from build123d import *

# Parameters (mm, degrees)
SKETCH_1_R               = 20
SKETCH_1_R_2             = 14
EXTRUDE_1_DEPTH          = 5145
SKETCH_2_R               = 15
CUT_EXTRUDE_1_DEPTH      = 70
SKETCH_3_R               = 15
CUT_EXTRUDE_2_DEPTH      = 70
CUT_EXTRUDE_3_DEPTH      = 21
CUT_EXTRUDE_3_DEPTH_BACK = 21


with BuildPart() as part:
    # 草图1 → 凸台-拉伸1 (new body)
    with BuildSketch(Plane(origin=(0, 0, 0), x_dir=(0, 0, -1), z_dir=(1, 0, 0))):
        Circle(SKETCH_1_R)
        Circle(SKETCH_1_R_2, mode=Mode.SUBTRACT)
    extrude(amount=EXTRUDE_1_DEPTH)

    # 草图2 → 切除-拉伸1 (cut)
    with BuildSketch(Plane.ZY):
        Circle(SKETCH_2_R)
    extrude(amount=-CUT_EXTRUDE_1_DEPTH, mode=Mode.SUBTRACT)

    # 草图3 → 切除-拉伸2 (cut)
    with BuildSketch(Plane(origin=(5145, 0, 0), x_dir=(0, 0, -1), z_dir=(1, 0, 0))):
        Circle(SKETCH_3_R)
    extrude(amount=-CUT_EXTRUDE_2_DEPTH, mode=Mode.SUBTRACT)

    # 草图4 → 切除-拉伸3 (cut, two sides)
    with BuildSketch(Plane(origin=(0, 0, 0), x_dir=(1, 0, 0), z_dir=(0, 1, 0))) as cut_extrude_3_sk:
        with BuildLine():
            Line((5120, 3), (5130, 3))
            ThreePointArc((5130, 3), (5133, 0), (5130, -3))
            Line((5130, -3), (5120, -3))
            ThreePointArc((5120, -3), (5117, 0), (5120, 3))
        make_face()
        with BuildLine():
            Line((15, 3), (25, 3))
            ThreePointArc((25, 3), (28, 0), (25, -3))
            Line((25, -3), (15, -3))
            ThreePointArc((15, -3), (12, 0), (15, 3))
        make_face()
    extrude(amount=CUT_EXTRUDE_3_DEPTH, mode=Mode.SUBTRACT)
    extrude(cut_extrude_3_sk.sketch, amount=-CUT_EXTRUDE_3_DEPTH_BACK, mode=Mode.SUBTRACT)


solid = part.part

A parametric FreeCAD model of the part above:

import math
import FreeCAD as App
import Part
import Sketcher

V = App.Vector
Q = App.Units.Quantity

doc = App.newDocument("Part")
body = doc.addObject("PartDesign::Body", "Body")

# Sketch on YZ plane
sketch1 = body.newObject("Sketcher::SketchObject", "Sketch")
sketch1.AttachmentSupport = (doc.getObject("YZ_Plane"), [""])
sketch1.MapMode = "FlatFace"
sketch1.addGeometry(Part.Circle(V(0, 0, 0), V(0, 0, 1), 20), False)
sketch1.addGeometry(Part.Circle(V(0, 0, 0), V(0, 0, 1), 14), False)
sketch1.addConstraint(Sketcher.Constraint("Coincident", 0, 3, -1, 1))
sketch1.addConstraint(Sketcher.Constraint("Coincident", 1, 3, -1, 1))
sketch1.addConstraint(Sketcher.Constraint("Diameter", 0, Q("40 mm")))
sketch1.addConstraint(Sketcher.Constraint("Diameter", 1, Q("28 mm")))
pad1 = body.newObject("PartDesign::Pad", "Pad")
pad1.Profile = sketch1
pad1.Length = 5145

# Sketch on YZ plane
sketch2 = body.newObject("Sketcher::SketchObject", "Sketch001")
sketch2.AttachmentSupport = (doc.getObject("YZ_Plane"), [""])
sketch2.MapMode = "FlatFace"
sketch2.addGeometry(Part.Circle(V(0, 0, 0), V(0, 0, 1), 15), False)
sketch2.addConstraint(Sketcher.Constraint("Coincident", 0, 3, -1, 1))
sketch2.addConstraint(Sketcher.Constraint("Diameter", 0, Q("30 mm")))
pocket1 = body.newObject("PartDesign::Pocket", "Pocket")
pocket1.Profile = sketch2
pocket1.Length = 70
pocket1.Reversed = True

# Sketch on YZ plane
sketch3 = body.newObject("Sketcher::SketchObject", "Sketch002")
sketch3.AttachmentSupport = (doc.getObject("YZ_Plane"), [""])
sketch3.MapMode = "FlatFace"
sketch3.AttachmentOffset = App.Placement(V(0, 0, 5145), App.Rotation())
sketch3.addGeometry(Part.Circle(V(0, 0, 0), V(0, 0, 1), 15), False)
sketch3.addConstraint(Sketcher.Constraint("Coincident", 0, 3, -1, 1))
sketch3.addConstraint(Sketcher.Constraint("Diameter", 0, Q("30 mm")))
pocket2 = body.newObject("PartDesign::Pocket", "Pocket001")
pocket2.Profile = sketch3
pocket2.Length = 70

# Sketch on XZ plane
sketch4 = body.newObject("Sketcher::SketchObject", "Sketch003")
sketch4.AttachmentSupport = (doc.getObject("XZ_Plane"), [""])
sketch4.MapMode = "FlatFace"
sketch4.addGeometry(Part.LineSegment(V(5130, -3, 0), V(5120, -3, 0)), False)
sketch4.addGeometry(Part.ArcOfCircle(Part.Circle(V(5120, 0, 0), V(0, 0, 1), 3), math.radians(90), math.radians(270)), False)
sketch4.addGeometry(Part.LineSegment(V(5120, 3, 0), V(5130, 3, 0)), False)
sketch4.addGeometry(Part.ArcOfCircle(Part.Circle(V(5130, 0, 0), V(0, 0, 1), 3), math.radians(-90), math.radians(90)), False)
sketch4.addGeometry(Part.LineSegment(V(25, -3, 0), V(15, -3, 0)), False)
sketch4.addGeometry(Part.ArcOfCircle(Part.Circle(V(15, 0, 0), V(0, 0, 1), 3), math.radians(90), math.radians(270)), False)
sketch4.addGeometry(Part.LineSegment(V(15, 3, 0), V(25, 3, 0)), False)
sketch4.addGeometry(Part.ArcOfCircle(Part.Circle(V(25, 0, 0), V(0, 0, 1), 3), math.radians(-90), math.radians(90)), False)
sketch4.addConstraint(Sketcher.Constraint("Tangent", 0, 2, 1, 2))
sketch4.addConstraint(Sketcher.Constraint("Tangent", 1, 1, 2, 1))
sketch4.addConstraint(Sketcher.Constraint("Tangent", 2, 2, 3, 2))
sketch4.addConstraint(Sketcher.Constraint("Tangent", 3, 1, 0, 1))
sketch4.addConstraint(Sketcher.Constraint("Tangent", 4, 2, 5, 2))
sketch4.addConstraint(Sketcher.Constraint("Tangent", 5, 1, 6, 1))
sketch4.addConstraint(Sketcher.Constraint("Tangent", 6, 2, 7, 2))
sketch4.addConstraint(Sketcher.Constraint("Tangent", 7, 1, 4, 1))
sketch4.addConstraint(Sketcher.Constraint("Horizontal", 0))
sketch4.addConstraint(Sketcher.Constraint("Horizontal", 2))
sketch4.addConstraint(Sketcher.Constraint("Horizontal", 4))
sketch4.addConstraint(Sketcher.Constraint("Horizontal", 6))
sketch4.addConstraint(Sketcher.Constraint("Equal", 3, 5))
sketch4.addConstraint(Sketcher.Constraint("PointOnObject", 1, 3, -1))
sketch4.addConstraint(Sketcher.Constraint("PointOnObject", 5, 3, -1))
sketch4.addConstraint(Sketcher.Constraint("Equal", 2, 4))
sketch4.addConstraint(Sketcher.Constraint("Radius", 1, Q("3 mm")))
sketch4.addConstraint(Sketcher.Constraint("DistanceX", 0, 2, 0, 1, Q("10 mm")))
sketch4.addConstraint(Sketcher.Constraint("DistanceX", -1, 1, 1, 3, Q("5120 mm")))
sketch4.addConstraint(Sketcher.Constraint("DistanceX", -1, 1, 5, 3, Q("15 mm")))
pocket3 = body.newObject("PartDesign::Pocket", "Pocket002")
pocket3.Profile = sketch4
pocket3.Type = "ThroughAll"
pocket3.Midplane = True

doc.recompute()
